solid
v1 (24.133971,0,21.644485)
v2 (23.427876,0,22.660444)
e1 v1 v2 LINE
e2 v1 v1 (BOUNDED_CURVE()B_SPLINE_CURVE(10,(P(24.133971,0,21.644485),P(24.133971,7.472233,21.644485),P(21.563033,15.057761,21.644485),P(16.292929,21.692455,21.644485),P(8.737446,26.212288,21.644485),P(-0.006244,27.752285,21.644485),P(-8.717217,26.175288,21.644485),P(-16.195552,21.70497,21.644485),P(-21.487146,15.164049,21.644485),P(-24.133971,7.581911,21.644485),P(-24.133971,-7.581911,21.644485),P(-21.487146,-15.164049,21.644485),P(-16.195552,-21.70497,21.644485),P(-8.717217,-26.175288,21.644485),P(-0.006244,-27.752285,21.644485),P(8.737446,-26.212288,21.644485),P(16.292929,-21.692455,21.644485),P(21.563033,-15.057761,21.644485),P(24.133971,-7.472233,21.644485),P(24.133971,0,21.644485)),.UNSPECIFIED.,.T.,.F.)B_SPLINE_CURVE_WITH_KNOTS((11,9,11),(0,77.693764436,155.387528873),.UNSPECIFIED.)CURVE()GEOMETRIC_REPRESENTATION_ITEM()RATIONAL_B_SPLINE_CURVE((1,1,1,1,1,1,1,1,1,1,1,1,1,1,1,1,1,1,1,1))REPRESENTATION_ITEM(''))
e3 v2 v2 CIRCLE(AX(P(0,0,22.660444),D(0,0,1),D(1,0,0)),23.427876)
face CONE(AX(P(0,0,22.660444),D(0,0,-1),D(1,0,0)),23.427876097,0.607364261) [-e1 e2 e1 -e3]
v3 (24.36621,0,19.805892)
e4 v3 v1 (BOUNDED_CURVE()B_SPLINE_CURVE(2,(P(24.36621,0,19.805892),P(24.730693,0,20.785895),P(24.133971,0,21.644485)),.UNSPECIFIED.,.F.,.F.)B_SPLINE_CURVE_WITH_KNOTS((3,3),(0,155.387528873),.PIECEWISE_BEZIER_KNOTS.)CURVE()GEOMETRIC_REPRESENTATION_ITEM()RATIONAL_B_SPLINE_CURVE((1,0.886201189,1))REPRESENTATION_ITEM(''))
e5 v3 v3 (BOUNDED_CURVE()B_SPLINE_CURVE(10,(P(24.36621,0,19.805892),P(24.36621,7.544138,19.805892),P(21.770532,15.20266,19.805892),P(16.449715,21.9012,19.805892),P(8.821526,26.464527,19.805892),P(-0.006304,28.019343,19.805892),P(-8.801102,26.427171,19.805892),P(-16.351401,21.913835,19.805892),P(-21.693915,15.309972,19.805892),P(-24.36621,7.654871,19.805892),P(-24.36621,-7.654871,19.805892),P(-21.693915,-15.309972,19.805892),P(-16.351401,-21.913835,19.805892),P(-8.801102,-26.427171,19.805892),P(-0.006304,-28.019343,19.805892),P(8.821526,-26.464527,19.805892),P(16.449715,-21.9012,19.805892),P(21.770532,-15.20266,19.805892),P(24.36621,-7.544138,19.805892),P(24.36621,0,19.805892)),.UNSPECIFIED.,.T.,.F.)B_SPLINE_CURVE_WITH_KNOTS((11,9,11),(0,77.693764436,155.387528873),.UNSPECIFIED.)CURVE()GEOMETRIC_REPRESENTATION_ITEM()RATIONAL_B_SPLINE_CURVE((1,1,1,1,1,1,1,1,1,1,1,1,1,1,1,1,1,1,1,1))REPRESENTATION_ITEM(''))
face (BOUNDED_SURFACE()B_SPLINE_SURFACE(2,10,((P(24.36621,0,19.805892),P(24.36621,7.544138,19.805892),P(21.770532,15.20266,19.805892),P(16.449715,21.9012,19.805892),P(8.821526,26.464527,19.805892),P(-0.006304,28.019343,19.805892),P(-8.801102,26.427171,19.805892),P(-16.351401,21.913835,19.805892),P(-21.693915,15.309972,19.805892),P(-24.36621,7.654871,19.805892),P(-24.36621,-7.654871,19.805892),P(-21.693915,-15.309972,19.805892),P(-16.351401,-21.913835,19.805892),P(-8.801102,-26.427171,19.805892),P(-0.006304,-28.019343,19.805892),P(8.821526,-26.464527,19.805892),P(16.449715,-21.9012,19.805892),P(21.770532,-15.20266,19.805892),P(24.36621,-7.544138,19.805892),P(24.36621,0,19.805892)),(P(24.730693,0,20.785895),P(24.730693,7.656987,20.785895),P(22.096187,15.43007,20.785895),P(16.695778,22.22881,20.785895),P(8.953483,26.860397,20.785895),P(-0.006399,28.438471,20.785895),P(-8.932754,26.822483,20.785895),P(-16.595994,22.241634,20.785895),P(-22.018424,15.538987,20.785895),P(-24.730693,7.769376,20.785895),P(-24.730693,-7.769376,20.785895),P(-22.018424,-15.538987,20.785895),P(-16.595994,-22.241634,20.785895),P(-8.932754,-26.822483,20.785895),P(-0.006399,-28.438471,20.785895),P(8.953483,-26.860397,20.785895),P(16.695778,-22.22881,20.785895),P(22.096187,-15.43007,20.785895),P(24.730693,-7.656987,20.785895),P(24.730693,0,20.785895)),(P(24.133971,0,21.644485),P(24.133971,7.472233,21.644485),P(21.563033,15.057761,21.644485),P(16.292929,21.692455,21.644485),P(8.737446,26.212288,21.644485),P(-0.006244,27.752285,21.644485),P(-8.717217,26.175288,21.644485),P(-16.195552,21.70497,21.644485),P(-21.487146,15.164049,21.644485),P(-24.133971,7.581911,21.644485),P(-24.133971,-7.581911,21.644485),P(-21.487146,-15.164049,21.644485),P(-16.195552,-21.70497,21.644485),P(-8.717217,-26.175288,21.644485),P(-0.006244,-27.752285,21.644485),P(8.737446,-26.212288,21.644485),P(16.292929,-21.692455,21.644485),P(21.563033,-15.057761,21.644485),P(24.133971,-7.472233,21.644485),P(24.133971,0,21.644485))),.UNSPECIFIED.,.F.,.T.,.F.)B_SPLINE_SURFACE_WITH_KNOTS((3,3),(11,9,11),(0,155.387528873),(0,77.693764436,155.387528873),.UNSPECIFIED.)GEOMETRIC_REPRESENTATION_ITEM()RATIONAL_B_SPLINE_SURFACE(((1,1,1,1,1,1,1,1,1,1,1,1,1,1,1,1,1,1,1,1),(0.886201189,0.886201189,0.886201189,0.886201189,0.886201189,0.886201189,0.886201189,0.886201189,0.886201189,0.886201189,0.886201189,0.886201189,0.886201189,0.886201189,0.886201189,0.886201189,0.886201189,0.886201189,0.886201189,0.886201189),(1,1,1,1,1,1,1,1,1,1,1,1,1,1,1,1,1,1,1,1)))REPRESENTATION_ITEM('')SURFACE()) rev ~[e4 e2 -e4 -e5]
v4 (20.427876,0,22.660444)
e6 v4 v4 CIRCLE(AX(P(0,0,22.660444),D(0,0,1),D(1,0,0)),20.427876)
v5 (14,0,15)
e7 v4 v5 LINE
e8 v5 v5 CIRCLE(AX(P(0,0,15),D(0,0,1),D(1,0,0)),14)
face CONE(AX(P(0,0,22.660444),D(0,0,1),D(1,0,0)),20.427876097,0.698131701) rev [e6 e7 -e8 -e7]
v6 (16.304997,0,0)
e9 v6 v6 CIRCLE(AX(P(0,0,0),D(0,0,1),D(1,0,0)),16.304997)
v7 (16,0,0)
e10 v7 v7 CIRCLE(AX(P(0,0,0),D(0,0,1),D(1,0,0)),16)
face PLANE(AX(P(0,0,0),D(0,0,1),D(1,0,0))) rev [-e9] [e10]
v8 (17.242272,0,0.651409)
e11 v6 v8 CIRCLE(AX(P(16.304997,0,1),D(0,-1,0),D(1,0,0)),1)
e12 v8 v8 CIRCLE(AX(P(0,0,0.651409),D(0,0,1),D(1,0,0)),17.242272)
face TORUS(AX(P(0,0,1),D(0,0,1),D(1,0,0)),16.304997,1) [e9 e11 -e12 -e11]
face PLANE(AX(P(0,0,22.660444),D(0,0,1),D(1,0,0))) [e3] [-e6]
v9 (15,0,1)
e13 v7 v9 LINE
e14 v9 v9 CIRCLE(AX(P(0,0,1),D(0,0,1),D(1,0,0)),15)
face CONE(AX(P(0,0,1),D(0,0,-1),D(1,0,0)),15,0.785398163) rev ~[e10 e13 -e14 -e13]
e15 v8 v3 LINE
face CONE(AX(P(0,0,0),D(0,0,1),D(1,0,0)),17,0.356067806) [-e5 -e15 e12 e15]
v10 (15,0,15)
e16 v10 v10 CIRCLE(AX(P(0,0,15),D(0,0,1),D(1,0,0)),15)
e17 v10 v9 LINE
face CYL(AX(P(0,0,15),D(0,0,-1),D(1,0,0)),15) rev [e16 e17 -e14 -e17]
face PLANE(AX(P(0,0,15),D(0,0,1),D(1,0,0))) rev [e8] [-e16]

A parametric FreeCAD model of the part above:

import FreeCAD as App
import Part
import Sketcher

V = App.Vector
Q = App.Units.Quantity


def edges_at(feature, points):
    """Names of the edges that pass closest to the given points."""
    edges = feature.Shape.Edges
    near = lambda p: min(range(len(edges)), key=lambda i: edges[i].distToShape(Part.Vertex(*p))[0])
    return sorted({f"Edge{near(p) + 1}" for p in points})

doc = App.newDocument("Part")
params = doc.addObject("Spreadsheet::Sheet", "Params")
for row, (alias, value) in enumerate([
    ("sketch1_width", "2 mm"),
    ("sketch1_width2", "5 mm"),
    ("sketch1_width3", "1 mm"),
    ("sketch1_height", "15 mm"),
    ("sketch1_length", "10 mm"),
    ("revolution_angle", "360 deg"),
    ("chamfer_size", "2 mm"),
    ("fillet_radius", "2 mm"),
    ("chamfer2_size", "1 mm"),
    ("fillet2_radius", "1 mm"),
], start=1):
    params.set(f"A{row}", alias)
    params.set(f"B{row}", "=" + value)
    params.setAlias(f"B{row}", alias)

body = doc.addObject("PartDesign::Body", "Body")

# Sketch on XZ plane
sketch1 = doc.addObject("Sketcher::SketchObject", "Sketch")
body.addObject(sketch1)
sketch1.AttachmentSupport = (doc.XZ_Plane, [""])
sketch1.MapMode = "FlatFace"
sketch1.addGeometry([
    Part.LineSegment(V(15, 15, 0), V(15, 0, 0)),  # 0
    Part.LineSegment(V(15, 0, 0), V(17, 0, 0)),  # 1
    Part.LineSegment(V(17, 0, 0), V(25.4, 22.7, 0)),  # 2
    Part.LineSegment(V(25.4, 22.7, 0), V(20.4, 22.7, 0)),  # 3
    Part.LineSegment(V(20.4, 22.7, 0), V(14, 15, 0)),  # 4
    Part.LineSegment(V(14, 15, 0), V(15, 15, 0)),  # 5
], False)
sketch1.addConstraint([
    Sketcher.Constraint("Coincident", 0, 2, 1, 1),
    Sketcher.Constraint("Coincident", 1, 2, 2, 1),
    Sketcher.Constraint("Coincident", 2, 2, 3, 1),
    Sketcher.Constraint("Coincident", 3, 2, 4, 1),
    Sketcher.Constraint("Coincident", 4, 2, 5, 1),
    Sketcher.Constraint("Coincident", 5, 2, 0, 1),
    Sketcher.Constraint("Vertical", 0),
    Sketcher.Constraint("Horizontal", 1),
    Sketcher.Constraint("Horizontal", 3),
    Sketcher.Constraint("Horizontal", 5),
    Sketcher.Constraint("PointOnObject", 0, 2, -1),
    Sketcher.Constraint("DistanceX", 1, 1, 1, 2, 2.0),
    Sketcher.Constraint("DistanceX", 3, 2, 3, 1, 5.0),
    Sketcher.Constraint("DistanceX", 5, 1, 5, 2, 1.0),
    Sketcher.Constraint("DistanceY", 0, 2, 0, 1, 15.0),
    Sketcher.Constraint("Angle", 4, Q("-130 deg")),
    Sketcher.Constraint("Distance", 4, 10.0),
    Sketcher.Constraint("DistanceX", -1, 1, 0, 2, 15.0),
])
sketch1.setExpression("Constraints[11]", "Params.sketch1_width")
sketch1.setExpression("Constraints[12]", "Params.sketch1_width2")
sketch1.setExpression("Constraints[13]", "Params.sketch1_width3")
sketch1.setExpression("Constraints[14]", "Params.sketch1_height")
sketch1.setExpression("Constraints[16]", "Params.sketch1_length")
revolution = doc.addObject("PartDesign::Revolution", "Revolution")
body.addObject(revolution)
revolution.Profile = sketch1
revolution.ReferenceAxis = (sketch1, ["V_Axis"])
revolution.setExpression("Angle", "Params.revolution_angle")
doc.recompute()

chamfer = doc.addObject("PartDesign::Chamfer", "Chamfer")
body.addObject(chamfer)
chamfer.Base = (revolution, edges_at(revolution, [(-25.428, 0, 22.66)]))
chamfer.setExpression("Size", "Params.chamfer_size")
doc.recompute()

fillet = doc.addObject("PartDesign::Fillet", "Fillet")
body.addObject(fillet)
fillet.Base = (chamfer, edges_at(chamfer, [(-24.731, 0, 20.786)]))
fillet.setExpression("Radius", "Params.fillet_radius")
doc.recompute()

chamfer2 = doc.addObject("PartDesign::Chamfer", "Chamfer001")
body.addObject(chamfer2)
chamfer2.Base = (fillet, edges_at(fillet, [(-15, 0, 0)]))
chamfer2.setExpression("Size", "Params.chamfer2_size")
doc.recompute()

fillet2 = doc.addObject("PartDesign::Fillet", "Fillet001")
body.addObject(fillet2)
fillet2.Base = (chamfer2, edges_at(chamfer2, [(-17, 0, 0)]))
fillet2.setExpression("Radius", "Params.fillet2_radius")

doc.recompute()
